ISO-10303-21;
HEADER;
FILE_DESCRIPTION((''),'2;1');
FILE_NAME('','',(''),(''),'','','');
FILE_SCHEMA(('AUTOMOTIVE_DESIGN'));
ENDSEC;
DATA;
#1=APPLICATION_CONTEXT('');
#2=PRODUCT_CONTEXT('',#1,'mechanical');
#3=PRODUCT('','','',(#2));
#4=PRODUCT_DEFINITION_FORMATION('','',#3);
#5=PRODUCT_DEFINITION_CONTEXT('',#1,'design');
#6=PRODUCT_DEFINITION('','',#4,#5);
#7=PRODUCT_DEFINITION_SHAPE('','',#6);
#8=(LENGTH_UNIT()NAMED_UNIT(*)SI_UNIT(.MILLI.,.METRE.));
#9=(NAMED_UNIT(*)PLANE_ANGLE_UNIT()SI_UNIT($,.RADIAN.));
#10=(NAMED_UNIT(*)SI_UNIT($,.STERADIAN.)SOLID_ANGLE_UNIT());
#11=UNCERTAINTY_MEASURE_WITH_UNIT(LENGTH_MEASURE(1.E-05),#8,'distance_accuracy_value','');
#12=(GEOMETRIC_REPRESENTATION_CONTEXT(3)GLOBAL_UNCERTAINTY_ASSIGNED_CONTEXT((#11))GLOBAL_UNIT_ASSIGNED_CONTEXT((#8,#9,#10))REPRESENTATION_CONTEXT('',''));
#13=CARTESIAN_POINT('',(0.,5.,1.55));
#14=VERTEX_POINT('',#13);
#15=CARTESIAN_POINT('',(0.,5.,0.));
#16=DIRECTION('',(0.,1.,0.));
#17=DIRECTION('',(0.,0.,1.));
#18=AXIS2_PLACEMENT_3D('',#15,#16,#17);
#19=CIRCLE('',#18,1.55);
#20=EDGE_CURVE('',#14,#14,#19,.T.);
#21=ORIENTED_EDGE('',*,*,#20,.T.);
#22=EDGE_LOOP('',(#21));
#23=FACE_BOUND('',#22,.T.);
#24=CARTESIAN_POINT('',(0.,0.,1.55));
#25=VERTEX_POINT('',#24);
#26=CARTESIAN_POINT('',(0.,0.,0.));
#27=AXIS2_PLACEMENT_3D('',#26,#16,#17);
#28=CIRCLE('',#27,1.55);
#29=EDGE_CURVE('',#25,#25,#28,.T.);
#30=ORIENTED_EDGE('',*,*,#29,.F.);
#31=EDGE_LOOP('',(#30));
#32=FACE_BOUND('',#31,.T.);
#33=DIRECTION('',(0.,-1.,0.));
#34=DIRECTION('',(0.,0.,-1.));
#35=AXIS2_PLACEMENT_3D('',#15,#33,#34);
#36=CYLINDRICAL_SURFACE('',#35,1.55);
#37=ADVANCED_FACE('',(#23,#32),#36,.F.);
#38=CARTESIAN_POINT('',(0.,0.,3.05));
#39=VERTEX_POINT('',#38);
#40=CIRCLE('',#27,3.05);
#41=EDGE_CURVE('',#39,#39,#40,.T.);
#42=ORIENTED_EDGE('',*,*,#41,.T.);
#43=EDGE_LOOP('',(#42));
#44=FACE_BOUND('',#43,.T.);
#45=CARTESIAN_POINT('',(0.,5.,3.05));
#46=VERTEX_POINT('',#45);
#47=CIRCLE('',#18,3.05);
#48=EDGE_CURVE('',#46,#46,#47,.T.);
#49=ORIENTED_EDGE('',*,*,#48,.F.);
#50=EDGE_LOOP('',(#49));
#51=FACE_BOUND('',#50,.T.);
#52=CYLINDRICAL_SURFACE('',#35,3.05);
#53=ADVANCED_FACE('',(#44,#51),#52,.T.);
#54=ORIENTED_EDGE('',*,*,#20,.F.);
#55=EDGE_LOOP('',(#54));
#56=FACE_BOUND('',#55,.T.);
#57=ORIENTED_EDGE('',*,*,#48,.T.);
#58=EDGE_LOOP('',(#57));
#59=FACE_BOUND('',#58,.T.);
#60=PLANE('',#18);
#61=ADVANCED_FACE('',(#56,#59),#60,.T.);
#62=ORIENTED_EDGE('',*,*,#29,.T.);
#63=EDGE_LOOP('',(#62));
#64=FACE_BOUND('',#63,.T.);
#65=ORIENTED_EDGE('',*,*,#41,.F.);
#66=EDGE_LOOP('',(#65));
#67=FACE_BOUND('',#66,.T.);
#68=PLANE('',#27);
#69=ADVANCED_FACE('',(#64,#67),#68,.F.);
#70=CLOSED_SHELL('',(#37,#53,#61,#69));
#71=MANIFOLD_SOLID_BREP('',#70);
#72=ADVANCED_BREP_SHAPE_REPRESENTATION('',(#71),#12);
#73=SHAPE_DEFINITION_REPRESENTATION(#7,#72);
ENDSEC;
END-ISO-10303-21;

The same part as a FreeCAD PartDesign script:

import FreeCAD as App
import Part
import Sketcher

V = App.Vector
Q = App.Units.Quantity

doc = App.newDocument("Part")
body = doc.addObject("PartDesign::Body", "Body")

sketch1 = body.newObject("Sketcher::SketchObject", "Sketch")
sketch1.AttachmentSupport = (doc.getObject("XZ_Plane"), [""])
sketch1.MapMode = "FlatFace"
sketch1.addGeometry([
    Part.Circle(V(0, 0, 0), V(0, 0, 1), 3),
    Part.Circle(V(0, 0, 0), V(0, 0, 1), 1.6),
], False)
sketch1.addConstraint([
    Sketcher.Constraint("Coincident", 0, 3, -1, 1),
    Sketcher.Constraint("Coincident", 1, 3, -1, 1),
    Sketcher.Constraint("Diameter", 0, Q("6.1 mm")),
    Sketcher.Constraint("Diameter", 1, Q("3.1 mm")),
])
pad1 = body.newObject("PartDesign::Pad", "Pad")
pad1.Profile = sketch1
pad1.Length = 5
pad1.Reversed = True

doc.recompute()
